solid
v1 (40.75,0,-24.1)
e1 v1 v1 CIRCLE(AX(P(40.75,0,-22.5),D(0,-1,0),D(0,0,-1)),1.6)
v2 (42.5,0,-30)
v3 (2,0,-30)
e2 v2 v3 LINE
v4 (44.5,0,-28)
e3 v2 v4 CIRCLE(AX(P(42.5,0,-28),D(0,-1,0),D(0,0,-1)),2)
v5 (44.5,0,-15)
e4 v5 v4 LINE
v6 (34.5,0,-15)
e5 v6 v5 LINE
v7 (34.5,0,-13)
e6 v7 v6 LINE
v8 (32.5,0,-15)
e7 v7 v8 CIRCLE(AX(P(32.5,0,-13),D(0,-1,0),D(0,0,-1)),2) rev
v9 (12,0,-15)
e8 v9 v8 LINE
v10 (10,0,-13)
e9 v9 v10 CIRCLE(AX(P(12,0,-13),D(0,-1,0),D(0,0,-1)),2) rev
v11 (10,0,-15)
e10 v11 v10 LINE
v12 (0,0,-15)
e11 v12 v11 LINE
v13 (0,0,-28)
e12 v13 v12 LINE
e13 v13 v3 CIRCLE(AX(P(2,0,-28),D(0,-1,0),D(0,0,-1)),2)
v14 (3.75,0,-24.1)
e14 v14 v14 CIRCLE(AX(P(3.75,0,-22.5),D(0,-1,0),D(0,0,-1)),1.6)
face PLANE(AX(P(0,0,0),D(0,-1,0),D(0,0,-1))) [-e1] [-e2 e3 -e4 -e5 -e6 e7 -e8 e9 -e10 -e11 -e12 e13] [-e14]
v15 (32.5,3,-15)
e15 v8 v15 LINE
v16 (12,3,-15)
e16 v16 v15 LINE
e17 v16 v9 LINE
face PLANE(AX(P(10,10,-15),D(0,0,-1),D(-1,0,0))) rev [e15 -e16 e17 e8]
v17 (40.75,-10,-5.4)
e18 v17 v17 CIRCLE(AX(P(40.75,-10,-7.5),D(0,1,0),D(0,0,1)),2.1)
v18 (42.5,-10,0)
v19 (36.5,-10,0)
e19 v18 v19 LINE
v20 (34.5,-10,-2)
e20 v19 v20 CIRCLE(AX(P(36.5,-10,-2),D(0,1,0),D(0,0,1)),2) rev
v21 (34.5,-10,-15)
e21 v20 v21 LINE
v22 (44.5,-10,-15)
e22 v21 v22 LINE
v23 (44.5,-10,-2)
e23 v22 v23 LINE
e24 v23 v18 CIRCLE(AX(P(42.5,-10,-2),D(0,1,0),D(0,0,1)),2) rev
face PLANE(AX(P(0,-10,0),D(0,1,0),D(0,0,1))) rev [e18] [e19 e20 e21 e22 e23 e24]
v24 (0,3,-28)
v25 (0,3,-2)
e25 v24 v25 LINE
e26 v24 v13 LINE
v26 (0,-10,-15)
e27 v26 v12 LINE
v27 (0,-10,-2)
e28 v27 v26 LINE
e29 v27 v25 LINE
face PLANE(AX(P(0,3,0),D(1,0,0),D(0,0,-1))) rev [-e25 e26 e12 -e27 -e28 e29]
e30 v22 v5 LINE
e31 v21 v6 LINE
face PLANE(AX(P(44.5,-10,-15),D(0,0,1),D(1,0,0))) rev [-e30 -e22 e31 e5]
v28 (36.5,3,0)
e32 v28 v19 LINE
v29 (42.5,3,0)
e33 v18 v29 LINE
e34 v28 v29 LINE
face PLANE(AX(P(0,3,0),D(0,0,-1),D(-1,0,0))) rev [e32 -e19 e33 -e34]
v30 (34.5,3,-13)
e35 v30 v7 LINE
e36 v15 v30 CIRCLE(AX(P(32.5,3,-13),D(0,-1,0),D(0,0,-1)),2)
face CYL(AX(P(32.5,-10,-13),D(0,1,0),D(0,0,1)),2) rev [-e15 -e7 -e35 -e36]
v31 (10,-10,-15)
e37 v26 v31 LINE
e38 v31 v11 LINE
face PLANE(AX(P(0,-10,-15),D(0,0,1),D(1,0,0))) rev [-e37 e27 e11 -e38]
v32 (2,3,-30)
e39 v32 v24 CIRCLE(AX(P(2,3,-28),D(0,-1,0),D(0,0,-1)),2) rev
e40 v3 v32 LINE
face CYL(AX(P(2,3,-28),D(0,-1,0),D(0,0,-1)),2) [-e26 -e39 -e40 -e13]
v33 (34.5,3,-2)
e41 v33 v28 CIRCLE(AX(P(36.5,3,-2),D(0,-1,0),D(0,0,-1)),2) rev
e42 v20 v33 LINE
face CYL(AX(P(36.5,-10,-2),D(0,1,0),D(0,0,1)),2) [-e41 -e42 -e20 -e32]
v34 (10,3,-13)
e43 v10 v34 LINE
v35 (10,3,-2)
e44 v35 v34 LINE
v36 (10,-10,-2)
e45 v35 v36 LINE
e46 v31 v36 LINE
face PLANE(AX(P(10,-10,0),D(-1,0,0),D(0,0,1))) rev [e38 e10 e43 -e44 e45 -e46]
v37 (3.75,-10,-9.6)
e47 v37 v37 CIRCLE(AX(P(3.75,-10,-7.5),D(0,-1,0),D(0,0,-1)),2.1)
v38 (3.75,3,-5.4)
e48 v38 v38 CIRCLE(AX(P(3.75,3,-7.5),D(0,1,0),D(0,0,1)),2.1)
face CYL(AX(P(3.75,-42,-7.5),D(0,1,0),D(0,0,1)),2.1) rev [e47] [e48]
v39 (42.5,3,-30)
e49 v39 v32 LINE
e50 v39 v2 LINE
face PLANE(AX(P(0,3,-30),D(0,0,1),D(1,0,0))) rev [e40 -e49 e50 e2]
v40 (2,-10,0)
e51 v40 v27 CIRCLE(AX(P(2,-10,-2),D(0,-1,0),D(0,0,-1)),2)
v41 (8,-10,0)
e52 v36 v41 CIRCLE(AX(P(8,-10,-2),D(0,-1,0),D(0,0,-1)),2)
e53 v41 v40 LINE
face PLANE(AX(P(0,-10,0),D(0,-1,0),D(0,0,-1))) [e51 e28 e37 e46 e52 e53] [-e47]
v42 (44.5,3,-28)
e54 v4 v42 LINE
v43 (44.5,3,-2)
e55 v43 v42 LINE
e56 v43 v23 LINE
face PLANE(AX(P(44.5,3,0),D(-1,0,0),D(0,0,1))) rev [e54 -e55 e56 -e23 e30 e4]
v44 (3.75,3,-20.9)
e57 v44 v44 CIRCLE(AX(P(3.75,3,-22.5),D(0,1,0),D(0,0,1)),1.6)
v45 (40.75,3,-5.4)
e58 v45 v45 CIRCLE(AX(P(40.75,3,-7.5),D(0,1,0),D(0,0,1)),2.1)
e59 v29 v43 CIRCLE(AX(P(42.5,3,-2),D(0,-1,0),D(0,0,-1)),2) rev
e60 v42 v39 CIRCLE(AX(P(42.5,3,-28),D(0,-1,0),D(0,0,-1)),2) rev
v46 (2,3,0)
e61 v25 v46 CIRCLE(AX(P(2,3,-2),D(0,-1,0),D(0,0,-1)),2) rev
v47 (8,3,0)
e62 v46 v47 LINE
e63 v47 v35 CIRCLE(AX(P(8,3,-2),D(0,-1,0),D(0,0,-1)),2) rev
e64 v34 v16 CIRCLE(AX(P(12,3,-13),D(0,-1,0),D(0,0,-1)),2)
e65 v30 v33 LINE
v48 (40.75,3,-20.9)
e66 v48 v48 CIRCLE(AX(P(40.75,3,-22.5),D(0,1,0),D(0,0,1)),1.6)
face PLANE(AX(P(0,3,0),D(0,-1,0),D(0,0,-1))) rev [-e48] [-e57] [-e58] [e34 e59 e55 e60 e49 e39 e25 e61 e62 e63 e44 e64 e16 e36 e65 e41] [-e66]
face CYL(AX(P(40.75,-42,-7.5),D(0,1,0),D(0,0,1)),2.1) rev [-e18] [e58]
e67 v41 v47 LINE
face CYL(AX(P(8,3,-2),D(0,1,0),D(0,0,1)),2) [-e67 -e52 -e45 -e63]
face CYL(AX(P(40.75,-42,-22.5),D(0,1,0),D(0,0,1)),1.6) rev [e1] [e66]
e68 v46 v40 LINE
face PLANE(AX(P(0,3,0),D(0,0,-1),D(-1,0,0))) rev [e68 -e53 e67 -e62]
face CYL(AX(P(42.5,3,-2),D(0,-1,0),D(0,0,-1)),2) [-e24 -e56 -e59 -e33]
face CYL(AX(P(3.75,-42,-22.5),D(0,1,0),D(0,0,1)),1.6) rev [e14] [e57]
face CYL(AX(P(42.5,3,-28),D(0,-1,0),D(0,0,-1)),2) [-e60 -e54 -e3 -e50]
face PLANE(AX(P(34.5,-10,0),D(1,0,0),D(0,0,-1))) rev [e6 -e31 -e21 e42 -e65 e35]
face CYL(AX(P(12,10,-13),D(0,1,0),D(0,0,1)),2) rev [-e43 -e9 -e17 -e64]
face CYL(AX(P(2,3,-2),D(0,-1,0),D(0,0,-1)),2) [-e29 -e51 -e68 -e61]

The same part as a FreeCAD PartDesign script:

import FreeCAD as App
import Part
import Sketcher

V = App.Vector


def edges_at(feature, points):
    """Names of the edges that pass closest to the given points."""
    edges = feature.Shape.Edges
    near = lambda p: min(range(len(edges)), key=lambda i: edges[i].distToShape(Part.Vertex(*p))[0])
    return sorted({f"Edge{near(p) + 1}" for p in points})


def add_polygon(sketch, points):
    """Adds a closed chain of lines whose ends are joined by coincident constraints."""
    first, n = sketch.GeometryCount, len(points)
    for a, b in zip(points, points[1:] + points[:1]):
        sketch.addGeometry(Part.LineSegment(App.Vector(*a, 0), App.Vector(*b, 0)), False)
    for i in range(n):
        sketch.addConstraint(Sketcher.Constraint("Coincident", first + i, 2, first + (i + 1) % n, 1))

doc = App.newDocument("Part")
params = doc.addObject("Spreadsheet::Sheet", "Params")
for row, (alias, value) in enumerate([
    ("sketch1_height", "30 mm"),
    ("sketch1_width", "44.5 mm"),
    ("pad1_length", "3 mm"),
    ("sketch2_width", "10 mm"),
    ("sketch2_height", "15 mm"),
    ("pad2_length", "10 mm"),
    ("sketch3_diameter", "4.2 mm"),
    ("sketch3_diameter2", "3.2 mm"),
    ("pocket1_length", "45 mm"),
    ("sketch4_height", "15 mm"),
    ("sketch4_width", "24.5 mm"),
    ("pocket2_length", "10 mm"),
    ("fillet_radius", "2 mm"),
], start=1):
    params.set(f"A{row}", alias)
    params.set(f"B{row}", "=" + value)
    params.setAlias(f"B{row}", alias)

body = doc.addObject("PartDesign::Body", "Body")

sketch1 = body.newObject("Sketcher::SketchObject", "Sketch")
sketch1.AttachmentSupport = (doc.getObject("XZ_Plane"), [""])
sketch1.MapMode = "FlatFace"
add_polygon(sketch1, [(0, -30), (0, 0), (44, 0), (44, -30)])
sketch1.addConstraint([
    Sketcher.Constraint("Vertical", 0),
    Sketcher.Constraint("Horizontal", 1),
    Sketcher.Constraint("Vertical", 2),
    Sketcher.Constraint("Horizontal", 3),
    Sketcher.Constraint("Coincident", 0, 2, -1, 1),
    Sketcher.Constraint("DistanceY", 0, 1, 0, 2, 30.0),
    Sketcher.Constraint("DistanceX", 1, 1, 1, 2, 44.5),
])
sketch1.setExpression("Constraints[9]", "Params.sketch1_height")
sketch1.setExpression("Constraints[10]", "Params.sketch1_width")
pad1 = body.newObject("PartDesign::Pad", "Pad")
pad1.Profile = sketch1
pad1.setExpression("Length", "Params.pad1_length")
pad1.Reversed = True

sketch2 = body.newObject("Sketcher::SketchObject", "Sketch001")
sketch2.AttachmentSupport = (doc.getObject("XZ_Plane"), [""])
sketch2.MapMode = "FlatFace"
add_polygon(sketch2, [(10, -15), (10, 0), (0, 0), (0, -15)])
add_polygon(sketch2, [(44, -15), (44, 0), (34, 0), (34, -15)])
sketch2.addConstraint([
    Sketcher.Constraint("Vertical", 0),
    Sketcher.Constraint("Horizontal", 1),
    Sketcher.Constraint("Vertical", 2),
    Sketcher.Constraint("Horizontal", 3),
    Sketcher.Constraint("Vertical", 4),
    Sketcher.Constraint("Horizontal", 5),
    Sketcher.Constraint("Vertical", 6),
    Sketcher.Constraint("Horizontal", 7),
    Sketcher.Constraint("Coincident", 1, 2, -1, 1),
    Sketcher.Constraint("PointOnObject", 4, 2, -1),
    Sketcher.Constraint("Horizontal", 3, 2, 6, 2),
    Sketcher.Constraint("Equal", 3, 5),
    Sketcher.Constraint("DistanceX", 1, 2, 1, 1, 10.0),
    Sketcher.Constraint("DistanceY", 0, 1, 0, 2, 15.0),
    Sketcher.Constraint("DistanceX", -1, 1, 4, 2, 44.5),
])
sketch2.setExpression("Constraints[20]", "Params.sketch2_width")
sketch2.setExpression("Constraints[21]", "Params.sketch2_height")
pad2 = body.newObject("PartDesign::Pad", "Pad001")
pad2.Profile = sketch2
pad2.setExpression("Length", "Params.pad2_length")

sketch3 = body.newObject("Sketcher::SketchObject", "Sketch002")
sketch3.AttachmentSupport = (doc.getObject("XZ_Plane"), [""])
sketch3.MapMode = "FlatFace"
sketch3.AttachmentOffset = App.Placement(V(0, 0, -3), App.Rotation())
sketch3.addGeometry([
    Part.Circle(V(3.8, -7.5, 0), V(0, 0, 1), 2.1),
    Part.Circle(V(40.8, -7.5, 0), V(0, 0, 1), 2.1),
    Part.Circle(V(40.8, -22.5, 0), V(0, 0, 1), 1.6),
    Part.Circle(V(3.8, -22.5, 0), V(0, 0, 1), 1.6),
], False)
sketch3.addConstraint([
    Sketcher.Constraint("Equal", 0, 1),
    Sketcher.Constraint("Equal", 2, 3),
    Sketcher.Constraint("Horizontal", 0, 3, 1, 3),
    Sketcher.Constraint("Horizontal", 2, 3, 3, 3),
    Sketcher.Constraint("Vertical", 1, 3, 2, 3),
    Sketcher.Constraint("Vertical", 0, 3, 3, 3),
    Sketcher.Constraint("Diameter", 0, 4.2),
    Sketcher.Constraint("Diameter", 2, 3.2),
    Sketcher.Constraint("DistanceX", 0, 3, 1, 3, 37.0),
    Sketcher.Constraint("DistanceY", 2, 3, 1, 3, 15.0),
    Sketcher.Constraint("DistanceY", 0, 3, -1, 1, 7.5),
    Sketcher.Constraint("DistanceX", -1, 1, 0, 3, 3.75),
])
sketch3.setExpression("Constraints[6]", "Params.sketch3_diameter")
sketch3.setExpression("Constraints[7]", "Params.sketch3_diameter2")
pocket1 = body.newObject("PartDesign::Pocket", "Pocket")
pocket1.Profile = sketch3
pocket1.setExpression("Length", "Params.pocket1_length")
pocket1.Reversed = True

sketch4 = body.newObject("Sketcher::SketchObject", "Sketch003")
sketch4.AttachmentSupport = (doc.getObject("XZ_Plane"), [""])
sketch4.MapMode = "FlatFace"
add_polygon(sketch4, [(34, -15), (34, 0), (10, 0), (10, -15)])
sketch4.addConstraint([
    Sketcher.Constraint("Vertical", 0),
    Sketcher.Constraint("Horizontal", 1),
    Sketcher.Constraint("Vertical", 2),
    Sketcher.Constraint("Horizontal", 3),
    Sketcher.Constraint("PointOnObject", 0, 2, -1),
    Sketcher.Constraint("DistanceY", 0, 1, 0, 2, 15.0),
    Sketcher.Constraint("DistanceX", 1, 2, 1, 1, 24.5),
    Sketcher.Constraint("DistanceX", -1, 1, 1, 2, 10.0),
])
sketch4.setExpression("Constraints[9]", "Params.sketch4_height")
sketch4.setExpression("Constraints[10]", "Params.sketch4_width")
pocket2 = body.newObject("PartDesign::Pocket", "Pocket001")
pocket2.Profile = sketch4
pocket2.setExpression("Length", "Params.pocket2_length")
doc.recompute()

fillet = body.newObject("PartDesign::Fillet", "Fillet")
fillet.Base = (pocket2, edges_at(pocket2, [
    (10, -3.5, 0),
    (34.5, -3.5, 0),
    (10, 1.5, -15),
    (34.5, 1.5, -15),
    (0, 1.5, -30),
    (44.5, 1.5, -30),
    (44.5, -3.5, 0),
    (0, -3.5, 0),
]))
fillet.setExpression("Radius", "Params.fillet_radius")

doc.recompute()
